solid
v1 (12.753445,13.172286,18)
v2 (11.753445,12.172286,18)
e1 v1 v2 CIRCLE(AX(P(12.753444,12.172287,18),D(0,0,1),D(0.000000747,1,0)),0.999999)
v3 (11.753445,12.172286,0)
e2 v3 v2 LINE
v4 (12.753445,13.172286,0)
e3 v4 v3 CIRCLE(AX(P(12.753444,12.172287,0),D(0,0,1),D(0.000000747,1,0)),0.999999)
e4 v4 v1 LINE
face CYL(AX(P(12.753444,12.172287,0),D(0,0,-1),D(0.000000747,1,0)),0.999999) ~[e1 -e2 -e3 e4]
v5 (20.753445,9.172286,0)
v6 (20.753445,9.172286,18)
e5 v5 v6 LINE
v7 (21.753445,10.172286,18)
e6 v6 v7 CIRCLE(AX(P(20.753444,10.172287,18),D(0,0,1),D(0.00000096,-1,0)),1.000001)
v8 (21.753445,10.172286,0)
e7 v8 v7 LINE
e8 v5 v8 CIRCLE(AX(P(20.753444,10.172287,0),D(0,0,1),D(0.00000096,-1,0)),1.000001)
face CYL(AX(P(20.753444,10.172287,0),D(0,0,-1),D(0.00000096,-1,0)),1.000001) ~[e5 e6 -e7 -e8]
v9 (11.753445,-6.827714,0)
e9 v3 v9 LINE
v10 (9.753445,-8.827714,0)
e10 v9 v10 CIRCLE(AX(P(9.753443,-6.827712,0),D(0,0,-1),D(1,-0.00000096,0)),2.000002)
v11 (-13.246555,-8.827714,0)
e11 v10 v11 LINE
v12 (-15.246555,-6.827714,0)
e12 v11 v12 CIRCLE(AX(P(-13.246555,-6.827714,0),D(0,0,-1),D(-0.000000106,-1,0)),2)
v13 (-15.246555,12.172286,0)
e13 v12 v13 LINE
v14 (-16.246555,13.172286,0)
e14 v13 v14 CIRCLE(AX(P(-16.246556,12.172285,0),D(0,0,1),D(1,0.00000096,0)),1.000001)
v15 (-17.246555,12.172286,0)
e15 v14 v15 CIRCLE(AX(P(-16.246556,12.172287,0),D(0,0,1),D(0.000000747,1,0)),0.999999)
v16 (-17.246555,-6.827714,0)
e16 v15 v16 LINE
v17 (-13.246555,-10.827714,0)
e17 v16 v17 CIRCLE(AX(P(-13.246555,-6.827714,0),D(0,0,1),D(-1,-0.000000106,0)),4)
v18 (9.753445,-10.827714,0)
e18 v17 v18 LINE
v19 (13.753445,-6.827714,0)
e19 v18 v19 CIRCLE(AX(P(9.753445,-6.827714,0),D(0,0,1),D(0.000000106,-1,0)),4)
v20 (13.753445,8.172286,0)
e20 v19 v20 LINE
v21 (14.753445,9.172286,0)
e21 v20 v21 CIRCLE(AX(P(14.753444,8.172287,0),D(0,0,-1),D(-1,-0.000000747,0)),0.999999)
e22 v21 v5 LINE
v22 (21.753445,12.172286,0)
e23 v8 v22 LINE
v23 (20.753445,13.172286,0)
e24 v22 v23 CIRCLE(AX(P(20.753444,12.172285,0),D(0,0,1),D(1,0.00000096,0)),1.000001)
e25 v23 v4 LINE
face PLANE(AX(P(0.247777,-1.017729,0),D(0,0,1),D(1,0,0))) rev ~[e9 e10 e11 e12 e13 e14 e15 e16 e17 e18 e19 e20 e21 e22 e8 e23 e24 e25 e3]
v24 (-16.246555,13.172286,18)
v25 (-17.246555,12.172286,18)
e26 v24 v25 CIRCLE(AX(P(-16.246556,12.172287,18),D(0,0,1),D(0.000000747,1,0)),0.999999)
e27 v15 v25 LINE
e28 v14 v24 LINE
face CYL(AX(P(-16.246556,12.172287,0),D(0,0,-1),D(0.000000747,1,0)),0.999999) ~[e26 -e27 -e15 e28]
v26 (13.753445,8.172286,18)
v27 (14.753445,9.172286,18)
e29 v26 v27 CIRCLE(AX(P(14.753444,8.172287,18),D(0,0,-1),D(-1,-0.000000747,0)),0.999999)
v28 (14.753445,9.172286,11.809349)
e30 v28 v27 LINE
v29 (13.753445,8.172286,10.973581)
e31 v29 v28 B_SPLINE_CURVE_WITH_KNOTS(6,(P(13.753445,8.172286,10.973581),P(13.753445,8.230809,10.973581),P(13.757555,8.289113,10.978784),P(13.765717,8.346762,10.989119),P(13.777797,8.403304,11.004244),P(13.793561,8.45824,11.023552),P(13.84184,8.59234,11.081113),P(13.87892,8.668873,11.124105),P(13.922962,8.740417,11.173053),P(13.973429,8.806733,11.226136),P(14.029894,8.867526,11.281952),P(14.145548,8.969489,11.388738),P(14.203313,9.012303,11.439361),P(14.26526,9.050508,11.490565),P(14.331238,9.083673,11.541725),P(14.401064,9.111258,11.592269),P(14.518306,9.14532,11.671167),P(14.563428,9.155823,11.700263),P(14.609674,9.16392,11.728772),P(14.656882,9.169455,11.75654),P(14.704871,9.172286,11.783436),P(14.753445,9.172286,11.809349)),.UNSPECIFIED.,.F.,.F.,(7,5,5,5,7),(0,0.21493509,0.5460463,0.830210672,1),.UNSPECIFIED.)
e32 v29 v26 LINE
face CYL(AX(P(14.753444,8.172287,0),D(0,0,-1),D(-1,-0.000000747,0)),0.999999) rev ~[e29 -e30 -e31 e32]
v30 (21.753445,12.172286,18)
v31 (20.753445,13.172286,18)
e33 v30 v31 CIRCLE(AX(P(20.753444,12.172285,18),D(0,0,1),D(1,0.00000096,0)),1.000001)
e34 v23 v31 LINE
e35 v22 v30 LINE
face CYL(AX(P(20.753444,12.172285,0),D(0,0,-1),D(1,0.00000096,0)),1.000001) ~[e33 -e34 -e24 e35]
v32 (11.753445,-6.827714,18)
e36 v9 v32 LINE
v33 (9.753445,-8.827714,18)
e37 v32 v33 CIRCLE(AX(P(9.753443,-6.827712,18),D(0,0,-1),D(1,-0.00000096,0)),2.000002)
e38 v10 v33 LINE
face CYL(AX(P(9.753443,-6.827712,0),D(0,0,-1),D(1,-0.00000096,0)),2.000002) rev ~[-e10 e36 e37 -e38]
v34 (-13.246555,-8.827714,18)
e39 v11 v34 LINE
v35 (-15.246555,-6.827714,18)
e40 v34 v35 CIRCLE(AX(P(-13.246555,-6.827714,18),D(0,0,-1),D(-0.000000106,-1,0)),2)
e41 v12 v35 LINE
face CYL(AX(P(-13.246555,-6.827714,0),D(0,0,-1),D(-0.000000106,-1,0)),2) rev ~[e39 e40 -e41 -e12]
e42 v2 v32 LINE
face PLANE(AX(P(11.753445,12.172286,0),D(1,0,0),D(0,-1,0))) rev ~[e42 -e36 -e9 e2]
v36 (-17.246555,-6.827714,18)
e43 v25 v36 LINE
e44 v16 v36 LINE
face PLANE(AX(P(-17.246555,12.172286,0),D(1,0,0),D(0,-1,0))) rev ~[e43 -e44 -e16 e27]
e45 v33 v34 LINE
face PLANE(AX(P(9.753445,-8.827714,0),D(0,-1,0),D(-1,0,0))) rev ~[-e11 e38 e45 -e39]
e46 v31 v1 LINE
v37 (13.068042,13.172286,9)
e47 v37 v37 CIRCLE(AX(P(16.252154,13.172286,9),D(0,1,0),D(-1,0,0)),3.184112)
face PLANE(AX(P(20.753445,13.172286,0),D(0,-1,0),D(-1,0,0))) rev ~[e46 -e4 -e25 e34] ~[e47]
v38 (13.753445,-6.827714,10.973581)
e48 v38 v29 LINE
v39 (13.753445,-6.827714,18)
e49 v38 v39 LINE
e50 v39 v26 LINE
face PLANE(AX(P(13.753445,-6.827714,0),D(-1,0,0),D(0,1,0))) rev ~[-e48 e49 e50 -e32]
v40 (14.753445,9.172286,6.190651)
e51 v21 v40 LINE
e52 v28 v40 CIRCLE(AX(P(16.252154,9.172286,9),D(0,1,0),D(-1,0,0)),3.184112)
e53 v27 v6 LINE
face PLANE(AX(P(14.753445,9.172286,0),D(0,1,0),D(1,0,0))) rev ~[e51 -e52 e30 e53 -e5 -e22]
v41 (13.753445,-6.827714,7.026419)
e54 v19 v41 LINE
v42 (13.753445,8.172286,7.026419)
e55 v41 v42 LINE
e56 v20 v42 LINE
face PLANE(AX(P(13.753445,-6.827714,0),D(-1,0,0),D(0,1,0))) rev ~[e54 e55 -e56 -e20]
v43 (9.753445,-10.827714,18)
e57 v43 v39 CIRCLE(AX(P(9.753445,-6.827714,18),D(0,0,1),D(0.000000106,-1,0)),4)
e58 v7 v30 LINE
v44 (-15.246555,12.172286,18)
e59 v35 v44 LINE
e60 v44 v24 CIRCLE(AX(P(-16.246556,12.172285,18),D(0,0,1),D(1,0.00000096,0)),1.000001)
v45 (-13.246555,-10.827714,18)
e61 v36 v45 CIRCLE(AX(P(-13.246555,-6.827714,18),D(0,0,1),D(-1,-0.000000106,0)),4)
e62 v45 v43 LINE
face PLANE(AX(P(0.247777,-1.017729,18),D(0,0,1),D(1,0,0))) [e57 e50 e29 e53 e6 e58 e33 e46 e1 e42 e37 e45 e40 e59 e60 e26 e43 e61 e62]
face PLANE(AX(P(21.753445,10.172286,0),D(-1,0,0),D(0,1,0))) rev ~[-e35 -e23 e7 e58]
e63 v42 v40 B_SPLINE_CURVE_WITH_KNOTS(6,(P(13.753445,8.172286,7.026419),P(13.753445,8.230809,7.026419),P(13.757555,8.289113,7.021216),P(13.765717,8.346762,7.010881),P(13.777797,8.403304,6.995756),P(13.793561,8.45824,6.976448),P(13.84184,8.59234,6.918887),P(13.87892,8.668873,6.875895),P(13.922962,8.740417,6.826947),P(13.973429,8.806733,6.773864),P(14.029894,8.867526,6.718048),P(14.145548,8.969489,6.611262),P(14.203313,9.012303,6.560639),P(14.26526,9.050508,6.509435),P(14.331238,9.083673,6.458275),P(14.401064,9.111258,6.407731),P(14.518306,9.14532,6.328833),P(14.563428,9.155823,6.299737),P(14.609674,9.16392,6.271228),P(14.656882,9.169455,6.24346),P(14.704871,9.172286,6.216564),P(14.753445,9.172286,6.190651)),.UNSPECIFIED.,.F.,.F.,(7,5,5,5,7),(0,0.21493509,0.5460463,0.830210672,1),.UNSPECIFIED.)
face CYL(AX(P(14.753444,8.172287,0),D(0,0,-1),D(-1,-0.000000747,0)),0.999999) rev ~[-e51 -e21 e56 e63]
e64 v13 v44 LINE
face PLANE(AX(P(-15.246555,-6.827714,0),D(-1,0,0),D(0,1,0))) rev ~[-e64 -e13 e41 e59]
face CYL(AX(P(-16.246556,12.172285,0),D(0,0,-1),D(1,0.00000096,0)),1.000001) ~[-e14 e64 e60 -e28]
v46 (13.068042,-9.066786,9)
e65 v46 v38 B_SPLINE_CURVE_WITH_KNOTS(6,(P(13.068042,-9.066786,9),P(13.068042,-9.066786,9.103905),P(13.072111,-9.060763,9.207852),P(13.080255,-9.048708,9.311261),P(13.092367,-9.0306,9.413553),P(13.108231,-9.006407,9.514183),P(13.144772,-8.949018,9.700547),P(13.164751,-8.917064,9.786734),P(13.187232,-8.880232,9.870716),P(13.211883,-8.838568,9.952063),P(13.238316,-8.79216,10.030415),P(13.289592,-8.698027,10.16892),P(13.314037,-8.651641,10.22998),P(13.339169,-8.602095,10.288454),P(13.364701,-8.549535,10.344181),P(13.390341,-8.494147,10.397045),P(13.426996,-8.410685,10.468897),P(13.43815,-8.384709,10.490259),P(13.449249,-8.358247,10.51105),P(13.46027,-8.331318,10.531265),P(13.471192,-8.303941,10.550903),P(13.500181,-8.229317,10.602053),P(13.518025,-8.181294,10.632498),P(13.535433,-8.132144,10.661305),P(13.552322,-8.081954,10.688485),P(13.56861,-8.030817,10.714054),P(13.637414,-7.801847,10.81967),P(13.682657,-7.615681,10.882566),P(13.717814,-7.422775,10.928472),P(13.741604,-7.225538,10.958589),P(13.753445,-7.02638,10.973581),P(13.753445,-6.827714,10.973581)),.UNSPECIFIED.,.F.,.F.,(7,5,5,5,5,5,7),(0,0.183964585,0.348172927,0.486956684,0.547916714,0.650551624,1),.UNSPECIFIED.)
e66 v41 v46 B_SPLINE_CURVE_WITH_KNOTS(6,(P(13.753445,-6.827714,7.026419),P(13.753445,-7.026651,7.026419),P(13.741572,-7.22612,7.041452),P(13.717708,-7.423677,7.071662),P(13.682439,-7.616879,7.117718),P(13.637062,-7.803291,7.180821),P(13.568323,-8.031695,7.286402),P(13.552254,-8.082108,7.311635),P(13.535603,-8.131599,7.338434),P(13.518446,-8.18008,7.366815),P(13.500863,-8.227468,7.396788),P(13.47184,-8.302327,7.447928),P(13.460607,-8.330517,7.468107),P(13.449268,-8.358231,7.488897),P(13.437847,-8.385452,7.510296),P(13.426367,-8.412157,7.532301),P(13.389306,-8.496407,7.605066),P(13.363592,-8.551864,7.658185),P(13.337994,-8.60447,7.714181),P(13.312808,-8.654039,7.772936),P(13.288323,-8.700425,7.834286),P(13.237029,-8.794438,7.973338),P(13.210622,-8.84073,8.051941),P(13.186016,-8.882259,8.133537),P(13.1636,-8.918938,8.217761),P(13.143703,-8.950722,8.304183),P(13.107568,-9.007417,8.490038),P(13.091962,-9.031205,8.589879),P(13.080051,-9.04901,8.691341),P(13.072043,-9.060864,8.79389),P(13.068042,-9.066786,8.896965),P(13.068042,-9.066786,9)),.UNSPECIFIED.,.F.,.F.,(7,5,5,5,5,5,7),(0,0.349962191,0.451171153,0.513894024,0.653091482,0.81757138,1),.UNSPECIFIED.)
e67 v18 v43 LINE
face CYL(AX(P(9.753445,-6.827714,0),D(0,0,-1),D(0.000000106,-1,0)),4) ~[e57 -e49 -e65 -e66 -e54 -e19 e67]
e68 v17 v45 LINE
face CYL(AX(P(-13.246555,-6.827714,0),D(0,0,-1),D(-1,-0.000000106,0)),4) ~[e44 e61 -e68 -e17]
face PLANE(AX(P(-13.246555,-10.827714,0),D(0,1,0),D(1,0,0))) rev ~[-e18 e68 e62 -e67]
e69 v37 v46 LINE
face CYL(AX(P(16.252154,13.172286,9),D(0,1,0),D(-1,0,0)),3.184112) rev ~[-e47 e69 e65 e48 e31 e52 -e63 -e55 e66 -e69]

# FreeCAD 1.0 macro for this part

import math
import FreeCAD as App
import Part
import Sketcher

V = App.Vector
Q = App.Units.Quantity

doc = App.newDocument("Part")
body = doc.addObject("PartDesign::Body", "Body")

sketch1 = doc.addObject("Sketcher::SketchObject", "Sketch")
body.addObject(sketch1)
sketch1.AttachmentSupport = (doc.XY_Plane, [""])
sketch1.MapMode = "FlatFace"
sketch1.addGeometry([
    Part.LineSegment(V(-15.2, -6.8, 0), V(-15.2, 12.2, 0)),
    Part.ArcOfCircle(Part.Circle(V(-16.2, 12.2, 0), V(0, 0, 1), 1), math.radians(0), math.radians(90)),
    Part.ArcOfCircle(Part.Circle(V(-16.2, 12.2, 0), V(0, 0, 1), 1), math.radians(90), math.radians(180)),
    Part.LineSegment(V(-17.2, 12.2, 0), V(-17.2, -6.8, 0)),
    Part.ArcOfCircle(Part.Circle(V(-13.2, -6.8, 0), V(0, 0, 1), 4), math.radians(-180), math.radians(-90)),
    Part.LineSegment(V(-13.2, -10.8, 0), V(9.8, -10.8, 0)),
    Part.ArcOfCircle(Part.Circle(V(9.8, -6.8, 0), V(0, 0, 1), 4), math.radians(-90), math.radians(0)),
    Part.LineSegment(V(13.8, -6.8, 0), V(13.8, 8.2, 0)),
    Part.ArcOfCircle(Part.Circle(V(14.8, 8.2, 0), V(0, 0, 1), 1), math.radians(90), math.radians(180)),
    Part.LineSegment(V(14.8, 9.2, 0), V(20.8, 9.2, 0)),
    Part.ArcOfCircle(Part.Circle(V(20.8, 10.2, 0), V(0, 0, 1), 1), math.radians(-90), math.radians(0)),
    Part.LineSegment(V(21.8, 10.2, 0), V(21.8, 12.2, 0)),
    Part.ArcOfCircle(Part.Circle(V(20.8, 12.2, 0), V(0, 0, 1), 1), math.radians(0), math.radians(90)),
    Part.LineSegment(V(20.8, 13.2, 0), V(12.8, 13.2, 0)),
    Part.ArcOfCircle(Part.Circle(V(12.8, 12.2, 0), V(0, 0, 1), 1), math.radians(90), math.radians(180)),
    Part.LineSegment(V(11.8, 12.2, 0), V(11.8, -6.8, 0)),
    Part.ArcOfCircle(Part.Circle(V(9.8, -6.8, 0), V(0, 0, 1), 2), math.radians(-90), math.radians(0)),
    Part.LineSegment(V(9.8, -8.8, 0), V(-13.2, -8.8, 0)),
    Part.ArcOfCircle(Part.Circle(V(-13.2, -6.8, 0), V(0, 0, 1), 2), math.radians(-180), math.radians(-90)),
], False)
sketch1.addConstraint([
    Sketcher.Constraint("Tangent", 0, 2, 1, 1),
    Sketcher.Constraint("Tangent", 1, 2, 2, 1),
    Sketcher.Constraint("Tangent", 2, 2, 3, 1),
    Sketcher.Constraint("Tangent", 3, 2, 4, 1),
    Sketcher.Constraint("Tangent", 4, 2, 5, 1),
    Sketcher.Constraint("Tangent", 5, 2, 6, 1),
    Sketcher.Constraint("Tangent", 6, 2, 7, 1),
    Sketcher.Constraint("Tangent", 7, 2, 8, 2),
    Sketcher.Constraint("Tangent", 8, 1, 9, 1),
    Sketcher.Constraint("Tangent", 9, 2, 10, 1),
    Sketcher.Constraint("Tangent", 10, 2, 11, 1),
    Sketcher.Constraint("Tangent", 11, 2, 12, 1),
    Sketcher.Constraint("Tangent", 12, 2, 13, 1),
    Sketcher.Constraint("Tangent", 13, 2, 14, 1),
    Sketcher.Constraint("Tangent", 14, 2, 15, 1),
    Sketcher.Constraint("Tangent", 15, 2, 16, 2),
    Sketcher.Constraint("Tangent", 16, 1, 17, 1),
    Sketcher.Constraint("Tangent", 17, 2, 18, 2),
    Sketcher.Constraint("Tangent", 18, 1, 0, 1),
    Sketcher.Constraint("Vertical", 0),
    Sketcher.Constraint("Vertical", 3),
    Sketcher.Constraint("Horizontal", 5),
    Sketcher.Constraint("Vertical", 7),
    Sketcher.Constraint("Horizontal", 9),
    Sketcher.Constraint("Vertical", 11),
    Sketcher.Constraint("Horizontal", 13),
    Sketcher.Constraint("Vertical", 15),
    Sketcher.Constraint("Horizontal", 17),
    Sketcher.Constraint("Coincident", 16, 3, 6, 3),
    Sketcher.Constraint("Coincident", 18, 3, 4, 3),
    Sketcher.Constraint("Equal", 1, 2),
    Sketcher.Constraint("Equal", 4, 6),
    Sketcher.Constraint("Equal", 2, 8),
    Sketcher.Constraint("Equal", 8, 10),
    Sketcher.Constraint("Equal", 10, 12),
    Sketcher.Constraint("Equal", 12, 14),
    Sketcher.Constraint("Horizontal", 2, 3, 12, 3),
    Sketcher.Constraint("Vertical", 2, 3, 1, 2),
    Sketcher.Constraint("Radius", 1, Q("1.000001 mm")),
    Sketcher.Constraint("Radius", 4, Q("4 mm")),
    Sketcher.Constraint("DistanceX", 5, 1, 5, 2, Q("23 mm")),
    Sketcher.Constraint("DistanceX", 9, 1, 9, 2, Q("6 mm")),
    Sketcher.Constraint("DistanceY", 0, 1, 0, 2, Q("19 mm")),
    Sketcher.Constraint("DistanceY", 7, 1, 7, 2, Q("15 mm")),
    Sketcher.Constraint("DistanceX", 1, 3, -1, 1, Q("16.246556 mm")),
    Sketcher.Constraint("DistanceY", -1, 1, 1, 3, Q("12.172285 mm")),
])
pad1 = doc.addObject("PartDesign::Pad", "Pad")
body.addObject(pad1)
pad1.Profile = sketch1
pad1.Length = 18

sketch2 = doc.addObject("Sketcher::SketchObject", "Sketch001")
body.addObject(sketch2)
sketch2.AttachmentSupport = (doc.XZ_Plane, [""])
sketch2.MapMode = "FlatFace"
sketch2.AttachmentOffset = App.Placement(V(0, 0, -13.172286), App.Rotation())
sketch2.addGeometry(Part.Circle(V(16.3, 9, 0), V(0, 0, 1), 3.2), False)
sketch2.addConstraint([
    Sketcher.Constraint("DistanceY", -1, 1, 0, 3, Q("9 mm")),
    Sketcher.Constraint("Diameter", 0, Q("6.368224 mm")),
    Sketcher.Constraint("DistanceX", -1, 1, 0, 3, Q("16.252154 mm")),
])
pocket1 = doc.addObject("PartDesign::Pocket", "Pocket")
body.addObject(pocket1)
pocket1.Profile = sketch2
pocket1.Length = 25
pocket1.Reversed = True

doc.recompute()
